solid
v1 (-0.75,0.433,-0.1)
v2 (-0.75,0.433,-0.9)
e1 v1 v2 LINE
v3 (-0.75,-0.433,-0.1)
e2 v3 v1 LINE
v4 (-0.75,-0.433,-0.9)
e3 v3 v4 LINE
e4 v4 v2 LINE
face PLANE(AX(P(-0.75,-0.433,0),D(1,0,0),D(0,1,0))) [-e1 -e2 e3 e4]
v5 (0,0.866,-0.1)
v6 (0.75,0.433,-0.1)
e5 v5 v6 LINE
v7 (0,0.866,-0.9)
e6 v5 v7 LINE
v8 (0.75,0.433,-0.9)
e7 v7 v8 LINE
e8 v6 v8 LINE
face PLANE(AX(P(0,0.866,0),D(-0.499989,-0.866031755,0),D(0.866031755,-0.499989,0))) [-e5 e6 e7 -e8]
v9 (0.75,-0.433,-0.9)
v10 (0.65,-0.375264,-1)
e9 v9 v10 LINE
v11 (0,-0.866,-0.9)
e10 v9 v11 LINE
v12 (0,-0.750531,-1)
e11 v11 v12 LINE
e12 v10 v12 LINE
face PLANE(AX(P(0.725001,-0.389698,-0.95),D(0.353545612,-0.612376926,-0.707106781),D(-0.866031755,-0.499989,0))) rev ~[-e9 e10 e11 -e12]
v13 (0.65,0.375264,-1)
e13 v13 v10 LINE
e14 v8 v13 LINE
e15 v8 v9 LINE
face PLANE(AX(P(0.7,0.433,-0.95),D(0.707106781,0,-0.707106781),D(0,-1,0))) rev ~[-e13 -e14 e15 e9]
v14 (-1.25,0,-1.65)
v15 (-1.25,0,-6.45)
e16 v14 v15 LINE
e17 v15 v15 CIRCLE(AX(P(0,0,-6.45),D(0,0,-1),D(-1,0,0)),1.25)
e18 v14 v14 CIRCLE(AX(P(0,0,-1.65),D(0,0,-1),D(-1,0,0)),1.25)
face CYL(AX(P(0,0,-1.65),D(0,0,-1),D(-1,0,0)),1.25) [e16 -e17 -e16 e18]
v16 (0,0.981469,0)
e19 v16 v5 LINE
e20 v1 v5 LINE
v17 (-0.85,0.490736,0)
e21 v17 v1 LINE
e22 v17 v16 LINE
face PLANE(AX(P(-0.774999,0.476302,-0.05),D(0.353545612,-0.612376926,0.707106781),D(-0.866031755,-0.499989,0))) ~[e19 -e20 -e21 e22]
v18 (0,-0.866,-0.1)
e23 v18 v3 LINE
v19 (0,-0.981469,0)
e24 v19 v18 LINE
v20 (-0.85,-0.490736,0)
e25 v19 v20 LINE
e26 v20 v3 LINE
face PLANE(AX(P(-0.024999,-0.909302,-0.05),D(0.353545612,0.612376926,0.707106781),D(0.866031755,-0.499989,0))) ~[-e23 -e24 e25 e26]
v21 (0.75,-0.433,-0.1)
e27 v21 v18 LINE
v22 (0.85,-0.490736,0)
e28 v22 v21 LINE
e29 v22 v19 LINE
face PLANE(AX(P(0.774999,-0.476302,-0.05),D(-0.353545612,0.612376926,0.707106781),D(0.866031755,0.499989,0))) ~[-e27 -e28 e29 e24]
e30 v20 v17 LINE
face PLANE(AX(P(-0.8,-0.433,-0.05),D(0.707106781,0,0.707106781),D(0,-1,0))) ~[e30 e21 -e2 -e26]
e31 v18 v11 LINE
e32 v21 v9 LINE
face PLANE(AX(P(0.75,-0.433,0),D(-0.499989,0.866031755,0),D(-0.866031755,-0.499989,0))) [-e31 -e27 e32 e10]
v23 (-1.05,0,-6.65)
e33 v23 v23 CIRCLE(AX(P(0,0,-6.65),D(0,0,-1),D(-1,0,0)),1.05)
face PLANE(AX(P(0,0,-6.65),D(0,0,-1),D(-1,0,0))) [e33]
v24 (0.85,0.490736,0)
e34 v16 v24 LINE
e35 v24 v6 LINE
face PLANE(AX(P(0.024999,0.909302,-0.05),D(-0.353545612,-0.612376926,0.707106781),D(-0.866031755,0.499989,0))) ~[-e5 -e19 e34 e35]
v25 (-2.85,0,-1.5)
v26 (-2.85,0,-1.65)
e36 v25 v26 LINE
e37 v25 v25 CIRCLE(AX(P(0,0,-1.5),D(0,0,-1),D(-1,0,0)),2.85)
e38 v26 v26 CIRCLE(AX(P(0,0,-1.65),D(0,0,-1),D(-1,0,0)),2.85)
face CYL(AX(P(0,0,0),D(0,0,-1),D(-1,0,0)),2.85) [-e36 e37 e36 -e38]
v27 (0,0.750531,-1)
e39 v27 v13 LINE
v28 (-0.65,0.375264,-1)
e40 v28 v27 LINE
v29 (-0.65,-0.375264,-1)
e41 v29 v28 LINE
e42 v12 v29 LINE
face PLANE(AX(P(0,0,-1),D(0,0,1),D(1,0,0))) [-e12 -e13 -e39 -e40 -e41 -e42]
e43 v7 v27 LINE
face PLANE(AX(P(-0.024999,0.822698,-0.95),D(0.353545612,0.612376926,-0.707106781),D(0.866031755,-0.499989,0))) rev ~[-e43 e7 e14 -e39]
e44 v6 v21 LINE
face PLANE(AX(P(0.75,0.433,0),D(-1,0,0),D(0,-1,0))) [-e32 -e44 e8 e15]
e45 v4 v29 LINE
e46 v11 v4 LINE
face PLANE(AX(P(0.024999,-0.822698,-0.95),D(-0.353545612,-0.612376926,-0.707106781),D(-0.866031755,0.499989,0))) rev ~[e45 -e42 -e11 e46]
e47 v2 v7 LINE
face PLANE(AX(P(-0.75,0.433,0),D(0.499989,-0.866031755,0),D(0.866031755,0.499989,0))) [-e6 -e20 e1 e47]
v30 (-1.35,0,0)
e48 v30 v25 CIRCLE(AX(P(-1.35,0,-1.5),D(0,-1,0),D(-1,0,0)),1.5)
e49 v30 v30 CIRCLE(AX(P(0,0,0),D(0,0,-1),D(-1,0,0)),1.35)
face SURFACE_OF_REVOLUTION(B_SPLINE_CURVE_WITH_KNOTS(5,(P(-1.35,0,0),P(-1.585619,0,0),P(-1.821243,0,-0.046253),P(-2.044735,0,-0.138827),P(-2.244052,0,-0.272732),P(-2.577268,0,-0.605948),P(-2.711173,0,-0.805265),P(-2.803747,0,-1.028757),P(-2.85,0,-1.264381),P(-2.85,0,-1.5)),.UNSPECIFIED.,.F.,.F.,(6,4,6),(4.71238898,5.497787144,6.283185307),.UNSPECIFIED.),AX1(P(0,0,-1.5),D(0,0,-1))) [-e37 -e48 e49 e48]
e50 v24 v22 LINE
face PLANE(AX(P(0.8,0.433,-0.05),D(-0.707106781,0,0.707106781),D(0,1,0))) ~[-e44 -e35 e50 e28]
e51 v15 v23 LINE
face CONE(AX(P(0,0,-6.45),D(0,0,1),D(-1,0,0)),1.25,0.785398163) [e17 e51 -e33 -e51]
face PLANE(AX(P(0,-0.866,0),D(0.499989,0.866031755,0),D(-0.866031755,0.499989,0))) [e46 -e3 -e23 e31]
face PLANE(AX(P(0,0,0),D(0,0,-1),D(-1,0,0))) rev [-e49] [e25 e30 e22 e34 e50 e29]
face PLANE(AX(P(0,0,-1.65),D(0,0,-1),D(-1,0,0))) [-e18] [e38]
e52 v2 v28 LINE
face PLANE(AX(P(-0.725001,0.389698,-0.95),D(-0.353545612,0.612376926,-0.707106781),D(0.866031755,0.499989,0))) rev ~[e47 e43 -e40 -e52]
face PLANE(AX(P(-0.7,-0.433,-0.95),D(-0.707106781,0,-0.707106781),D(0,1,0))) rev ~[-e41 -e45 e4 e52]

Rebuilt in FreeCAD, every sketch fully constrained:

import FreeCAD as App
import Part
import Sketcher
from FreeCAD import Vector
Q = App.Units.Quantity


def edges_at(feature, points):
    """Names of the edges that pass closest to the given points."""
    edges = feature.Shape.Edges
    near = lambda p: min(range(len(edges)), key=lambda i: edges[i].distToShape(Part.Vertex(*p))[0])
    return sorted({f"Edge{near(p) + 1}" for p in points})

doc = App.newDocument("Part")
body = doc.addObject("PartDesign::Body", "Body")

# Sketch on XZ plane
sketch1 = doc.addObject("Sketcher::SketchObject", "Sketch")
body.addObject(sketch1)
sketch1.AttachmentSupport = (doc.XZ_Plane, [""])
sketch1.MapMode = "FlatFace"
sketch1.addGeometry([
    Part.LineSegment(Vector(-2.9, 0, 0), Vector(0, 0, 0)),  # 0
    Part.LineSegment(Vector(0, 0, 0), Vector(0, -6.7, 0)),  # 1
    Part.LineSegment(Vector(0, -6.7, 0), Vector(-1.2, -6.7, 0)),  # 2
    Part.LineSegment(Vector(-1.2, -6.7, 0), Vector(-1.2, -1.6, 0)),  # 3
    Part.LineSegment(Vector(-1.2, -1.6, 0), Vector(-2.9, -1.6, 0)),  # 4
    Part.LineSegment(Vector(-2.9, -1.6, 0), Vector(-2.9, 0, 0)),  # 5
], False)
sketch1.addConstraint([
    Sketcher.Constraint("Coincident", 0, 2, 1, 1),
    Sketcher.Constraint("Coincident", 1, 2, 2, 1),
    Sketcher.Constraint("Coincident", 2, 2, 3, 1),
    Sketcher.Constraint("Coincident", 3, 2, 4, 1),
    Sketcher.Constraint("Coincident", 4, 2, 5, 1),
    Sketcher.Constraint("Coincident", 5, 2, 0, 1),
    Sketcher.Constraint("Horizontal", 0),
    Sketcher.Constraint("Vertical", 1),
    Sketcher.Constraint("Horizontal", 2),
    Sketcher.Constraint("Vertical", 3),
    Sketcher.Constraint("Horizontal", 4),
    Sketcher.Constraint("Vertical", 5),
    Sketcher.Constraint("Coincident", 0, 2, -1, 1),
    Sketcher.Constraint("DistanceY", 3, 1, 3, 2, 5.0),
    Sketcher.Constraint("DistanceX", 0, 1, 0, 2, 2.85),
    Sketcher.Constraint("DistanceY", 5, 1, 5, 2, 1.65),
    Sketcher.Constraint("DistanceX", 4, 2, 4, 1, 1.6),
])
revolution = doc.addObject("PartDesign::Revolution", "Revolution")
body.addObject(revolution)
revolution.Profile = sketch1
revolution.ReferenceAxis = (sketch1, ["V_Axis"])
revolution.Angle = 360
doc.recompute()

fillet = doc.addObject("PartDesign::Fillet", "Fillet")
body.addObject(fillet)
fillet.Base = (revolution, edges_at(revolution, [(2.85, 0, 0)]))
fillet.Radius = 1.5
doc.recompute()

chamfer = doc.addObject("PartDesign::Chamfer", "Chamfer")
body.addObject(chamfer)
chamfer.Base = (fillet, edges_at(fillet, [(1.25, 0, -6.65)]))
chamfer.Size = 0.2

# Sketch on XY plane
sketch2 = doc.addObject("Sketcher::SketchObject", "Sketch001")
body.addObject(sketch2)
sketch2.AttachmentSupport = (doc.XY_Plane, [""])
sketch2.MapMode = "FlatFace"
sketch2.addGeometry([
    Part.LineSegment(Vector(0.8, 0.4, 0), Vector(0, 0.9, 0)),  # 0
    Part.LineSegment(Vector(0, 0.9, 0), Vector(-0.8, 0.4, 0)),  # 1
    Part.LineSegment(Vector(-0.8, 0.4, 0), Vector(-0.8, -0.4, 0)),  # 2
    Part.LineSegment(Vector(-0.8, -0.4, 0), Vector(0, -0.9, 0)),  # 3
    Part.LineSegment(Vector(0, -0.9, 0), Vector(0.8, -0.4, 0)),  # 4
    Part.LineSegment(Vector(0.8, -0.4, 0), Vector(0.8, 0.4, 0)),  # 5
], False)
sketch2.addConstraint([
    Sketcher.Constraint("Coincident", 0, 2, 1, 1),
    Sketcher.Constraint("Coincident", 1, 2, 2, 1),
    Sketcher.Constraint("Coincident", 2, 2, 3, 1),
    Sketcher.Constraint("Coincident", 3, 2, 4, 1),
    Sketcher.Constraint("Coincident", 4, 2, 5, 1),
    Sketcher.Constraint("Coincident", 5, 2, 0, 1),
    Sketcher.Constraint("Vertical", 2),
    Sketcher.Constraint("Vertical", 5),
    Sketcher.Constraint("Symmetric", 0, 2, 3, 2, -1, 1),
    Sketcher.Constraint("Symmetric", 1, 2, 4, 2, -1, 1),
    Sketcher.Constraint("PointOnObject", 0, 2, -2),
    Sketcher.Constraint("Parallel", 0, 3),
    Sketcher.Constraint("Horizontal", 2, 2, 4, 2),
    Sketcher.Constraint("DistanceX", 2, 2, 4, 2, 1.5),
    Sketcher.Constraint("Angle", 0, Q("150.0007 deg")),
    Sketcher.Constraint("DistanceY", -1, 1, 1, 2, 0.433),
])
pocket1 = doc.addObject("PartDesign::Pocket", "Pocket")
body.addObject(pocket1)
pocket1.Profile = sketch2
pocket1.Length = 1
doc.recompute()

chamfer2 = doc.addObject("PartDesign::Chamfer", "Chamfer001")
body.addObject(chamfer2)
chamfer2.Base = (pocket1, edges_at(pocket1, [
    (-0.75, 0, 0),
    (-0.375, 0.649, 0),
    (0.375, 0.649, 0),
    (0.75, 0, 0),
    (0.375, -0.649, 0),
    (-0.375, -0.649, 0),
    (-0.375, 0.649, -1),
    (-0.75, 0, -1),
    (-0.375, -0.649, -1),
    (0.375, -0.649, -1),
    (0.75, 0, -1),
    (0.375, 0.649, -1),
]))
chamfer2.Size = 0.1

doc.recompute()
